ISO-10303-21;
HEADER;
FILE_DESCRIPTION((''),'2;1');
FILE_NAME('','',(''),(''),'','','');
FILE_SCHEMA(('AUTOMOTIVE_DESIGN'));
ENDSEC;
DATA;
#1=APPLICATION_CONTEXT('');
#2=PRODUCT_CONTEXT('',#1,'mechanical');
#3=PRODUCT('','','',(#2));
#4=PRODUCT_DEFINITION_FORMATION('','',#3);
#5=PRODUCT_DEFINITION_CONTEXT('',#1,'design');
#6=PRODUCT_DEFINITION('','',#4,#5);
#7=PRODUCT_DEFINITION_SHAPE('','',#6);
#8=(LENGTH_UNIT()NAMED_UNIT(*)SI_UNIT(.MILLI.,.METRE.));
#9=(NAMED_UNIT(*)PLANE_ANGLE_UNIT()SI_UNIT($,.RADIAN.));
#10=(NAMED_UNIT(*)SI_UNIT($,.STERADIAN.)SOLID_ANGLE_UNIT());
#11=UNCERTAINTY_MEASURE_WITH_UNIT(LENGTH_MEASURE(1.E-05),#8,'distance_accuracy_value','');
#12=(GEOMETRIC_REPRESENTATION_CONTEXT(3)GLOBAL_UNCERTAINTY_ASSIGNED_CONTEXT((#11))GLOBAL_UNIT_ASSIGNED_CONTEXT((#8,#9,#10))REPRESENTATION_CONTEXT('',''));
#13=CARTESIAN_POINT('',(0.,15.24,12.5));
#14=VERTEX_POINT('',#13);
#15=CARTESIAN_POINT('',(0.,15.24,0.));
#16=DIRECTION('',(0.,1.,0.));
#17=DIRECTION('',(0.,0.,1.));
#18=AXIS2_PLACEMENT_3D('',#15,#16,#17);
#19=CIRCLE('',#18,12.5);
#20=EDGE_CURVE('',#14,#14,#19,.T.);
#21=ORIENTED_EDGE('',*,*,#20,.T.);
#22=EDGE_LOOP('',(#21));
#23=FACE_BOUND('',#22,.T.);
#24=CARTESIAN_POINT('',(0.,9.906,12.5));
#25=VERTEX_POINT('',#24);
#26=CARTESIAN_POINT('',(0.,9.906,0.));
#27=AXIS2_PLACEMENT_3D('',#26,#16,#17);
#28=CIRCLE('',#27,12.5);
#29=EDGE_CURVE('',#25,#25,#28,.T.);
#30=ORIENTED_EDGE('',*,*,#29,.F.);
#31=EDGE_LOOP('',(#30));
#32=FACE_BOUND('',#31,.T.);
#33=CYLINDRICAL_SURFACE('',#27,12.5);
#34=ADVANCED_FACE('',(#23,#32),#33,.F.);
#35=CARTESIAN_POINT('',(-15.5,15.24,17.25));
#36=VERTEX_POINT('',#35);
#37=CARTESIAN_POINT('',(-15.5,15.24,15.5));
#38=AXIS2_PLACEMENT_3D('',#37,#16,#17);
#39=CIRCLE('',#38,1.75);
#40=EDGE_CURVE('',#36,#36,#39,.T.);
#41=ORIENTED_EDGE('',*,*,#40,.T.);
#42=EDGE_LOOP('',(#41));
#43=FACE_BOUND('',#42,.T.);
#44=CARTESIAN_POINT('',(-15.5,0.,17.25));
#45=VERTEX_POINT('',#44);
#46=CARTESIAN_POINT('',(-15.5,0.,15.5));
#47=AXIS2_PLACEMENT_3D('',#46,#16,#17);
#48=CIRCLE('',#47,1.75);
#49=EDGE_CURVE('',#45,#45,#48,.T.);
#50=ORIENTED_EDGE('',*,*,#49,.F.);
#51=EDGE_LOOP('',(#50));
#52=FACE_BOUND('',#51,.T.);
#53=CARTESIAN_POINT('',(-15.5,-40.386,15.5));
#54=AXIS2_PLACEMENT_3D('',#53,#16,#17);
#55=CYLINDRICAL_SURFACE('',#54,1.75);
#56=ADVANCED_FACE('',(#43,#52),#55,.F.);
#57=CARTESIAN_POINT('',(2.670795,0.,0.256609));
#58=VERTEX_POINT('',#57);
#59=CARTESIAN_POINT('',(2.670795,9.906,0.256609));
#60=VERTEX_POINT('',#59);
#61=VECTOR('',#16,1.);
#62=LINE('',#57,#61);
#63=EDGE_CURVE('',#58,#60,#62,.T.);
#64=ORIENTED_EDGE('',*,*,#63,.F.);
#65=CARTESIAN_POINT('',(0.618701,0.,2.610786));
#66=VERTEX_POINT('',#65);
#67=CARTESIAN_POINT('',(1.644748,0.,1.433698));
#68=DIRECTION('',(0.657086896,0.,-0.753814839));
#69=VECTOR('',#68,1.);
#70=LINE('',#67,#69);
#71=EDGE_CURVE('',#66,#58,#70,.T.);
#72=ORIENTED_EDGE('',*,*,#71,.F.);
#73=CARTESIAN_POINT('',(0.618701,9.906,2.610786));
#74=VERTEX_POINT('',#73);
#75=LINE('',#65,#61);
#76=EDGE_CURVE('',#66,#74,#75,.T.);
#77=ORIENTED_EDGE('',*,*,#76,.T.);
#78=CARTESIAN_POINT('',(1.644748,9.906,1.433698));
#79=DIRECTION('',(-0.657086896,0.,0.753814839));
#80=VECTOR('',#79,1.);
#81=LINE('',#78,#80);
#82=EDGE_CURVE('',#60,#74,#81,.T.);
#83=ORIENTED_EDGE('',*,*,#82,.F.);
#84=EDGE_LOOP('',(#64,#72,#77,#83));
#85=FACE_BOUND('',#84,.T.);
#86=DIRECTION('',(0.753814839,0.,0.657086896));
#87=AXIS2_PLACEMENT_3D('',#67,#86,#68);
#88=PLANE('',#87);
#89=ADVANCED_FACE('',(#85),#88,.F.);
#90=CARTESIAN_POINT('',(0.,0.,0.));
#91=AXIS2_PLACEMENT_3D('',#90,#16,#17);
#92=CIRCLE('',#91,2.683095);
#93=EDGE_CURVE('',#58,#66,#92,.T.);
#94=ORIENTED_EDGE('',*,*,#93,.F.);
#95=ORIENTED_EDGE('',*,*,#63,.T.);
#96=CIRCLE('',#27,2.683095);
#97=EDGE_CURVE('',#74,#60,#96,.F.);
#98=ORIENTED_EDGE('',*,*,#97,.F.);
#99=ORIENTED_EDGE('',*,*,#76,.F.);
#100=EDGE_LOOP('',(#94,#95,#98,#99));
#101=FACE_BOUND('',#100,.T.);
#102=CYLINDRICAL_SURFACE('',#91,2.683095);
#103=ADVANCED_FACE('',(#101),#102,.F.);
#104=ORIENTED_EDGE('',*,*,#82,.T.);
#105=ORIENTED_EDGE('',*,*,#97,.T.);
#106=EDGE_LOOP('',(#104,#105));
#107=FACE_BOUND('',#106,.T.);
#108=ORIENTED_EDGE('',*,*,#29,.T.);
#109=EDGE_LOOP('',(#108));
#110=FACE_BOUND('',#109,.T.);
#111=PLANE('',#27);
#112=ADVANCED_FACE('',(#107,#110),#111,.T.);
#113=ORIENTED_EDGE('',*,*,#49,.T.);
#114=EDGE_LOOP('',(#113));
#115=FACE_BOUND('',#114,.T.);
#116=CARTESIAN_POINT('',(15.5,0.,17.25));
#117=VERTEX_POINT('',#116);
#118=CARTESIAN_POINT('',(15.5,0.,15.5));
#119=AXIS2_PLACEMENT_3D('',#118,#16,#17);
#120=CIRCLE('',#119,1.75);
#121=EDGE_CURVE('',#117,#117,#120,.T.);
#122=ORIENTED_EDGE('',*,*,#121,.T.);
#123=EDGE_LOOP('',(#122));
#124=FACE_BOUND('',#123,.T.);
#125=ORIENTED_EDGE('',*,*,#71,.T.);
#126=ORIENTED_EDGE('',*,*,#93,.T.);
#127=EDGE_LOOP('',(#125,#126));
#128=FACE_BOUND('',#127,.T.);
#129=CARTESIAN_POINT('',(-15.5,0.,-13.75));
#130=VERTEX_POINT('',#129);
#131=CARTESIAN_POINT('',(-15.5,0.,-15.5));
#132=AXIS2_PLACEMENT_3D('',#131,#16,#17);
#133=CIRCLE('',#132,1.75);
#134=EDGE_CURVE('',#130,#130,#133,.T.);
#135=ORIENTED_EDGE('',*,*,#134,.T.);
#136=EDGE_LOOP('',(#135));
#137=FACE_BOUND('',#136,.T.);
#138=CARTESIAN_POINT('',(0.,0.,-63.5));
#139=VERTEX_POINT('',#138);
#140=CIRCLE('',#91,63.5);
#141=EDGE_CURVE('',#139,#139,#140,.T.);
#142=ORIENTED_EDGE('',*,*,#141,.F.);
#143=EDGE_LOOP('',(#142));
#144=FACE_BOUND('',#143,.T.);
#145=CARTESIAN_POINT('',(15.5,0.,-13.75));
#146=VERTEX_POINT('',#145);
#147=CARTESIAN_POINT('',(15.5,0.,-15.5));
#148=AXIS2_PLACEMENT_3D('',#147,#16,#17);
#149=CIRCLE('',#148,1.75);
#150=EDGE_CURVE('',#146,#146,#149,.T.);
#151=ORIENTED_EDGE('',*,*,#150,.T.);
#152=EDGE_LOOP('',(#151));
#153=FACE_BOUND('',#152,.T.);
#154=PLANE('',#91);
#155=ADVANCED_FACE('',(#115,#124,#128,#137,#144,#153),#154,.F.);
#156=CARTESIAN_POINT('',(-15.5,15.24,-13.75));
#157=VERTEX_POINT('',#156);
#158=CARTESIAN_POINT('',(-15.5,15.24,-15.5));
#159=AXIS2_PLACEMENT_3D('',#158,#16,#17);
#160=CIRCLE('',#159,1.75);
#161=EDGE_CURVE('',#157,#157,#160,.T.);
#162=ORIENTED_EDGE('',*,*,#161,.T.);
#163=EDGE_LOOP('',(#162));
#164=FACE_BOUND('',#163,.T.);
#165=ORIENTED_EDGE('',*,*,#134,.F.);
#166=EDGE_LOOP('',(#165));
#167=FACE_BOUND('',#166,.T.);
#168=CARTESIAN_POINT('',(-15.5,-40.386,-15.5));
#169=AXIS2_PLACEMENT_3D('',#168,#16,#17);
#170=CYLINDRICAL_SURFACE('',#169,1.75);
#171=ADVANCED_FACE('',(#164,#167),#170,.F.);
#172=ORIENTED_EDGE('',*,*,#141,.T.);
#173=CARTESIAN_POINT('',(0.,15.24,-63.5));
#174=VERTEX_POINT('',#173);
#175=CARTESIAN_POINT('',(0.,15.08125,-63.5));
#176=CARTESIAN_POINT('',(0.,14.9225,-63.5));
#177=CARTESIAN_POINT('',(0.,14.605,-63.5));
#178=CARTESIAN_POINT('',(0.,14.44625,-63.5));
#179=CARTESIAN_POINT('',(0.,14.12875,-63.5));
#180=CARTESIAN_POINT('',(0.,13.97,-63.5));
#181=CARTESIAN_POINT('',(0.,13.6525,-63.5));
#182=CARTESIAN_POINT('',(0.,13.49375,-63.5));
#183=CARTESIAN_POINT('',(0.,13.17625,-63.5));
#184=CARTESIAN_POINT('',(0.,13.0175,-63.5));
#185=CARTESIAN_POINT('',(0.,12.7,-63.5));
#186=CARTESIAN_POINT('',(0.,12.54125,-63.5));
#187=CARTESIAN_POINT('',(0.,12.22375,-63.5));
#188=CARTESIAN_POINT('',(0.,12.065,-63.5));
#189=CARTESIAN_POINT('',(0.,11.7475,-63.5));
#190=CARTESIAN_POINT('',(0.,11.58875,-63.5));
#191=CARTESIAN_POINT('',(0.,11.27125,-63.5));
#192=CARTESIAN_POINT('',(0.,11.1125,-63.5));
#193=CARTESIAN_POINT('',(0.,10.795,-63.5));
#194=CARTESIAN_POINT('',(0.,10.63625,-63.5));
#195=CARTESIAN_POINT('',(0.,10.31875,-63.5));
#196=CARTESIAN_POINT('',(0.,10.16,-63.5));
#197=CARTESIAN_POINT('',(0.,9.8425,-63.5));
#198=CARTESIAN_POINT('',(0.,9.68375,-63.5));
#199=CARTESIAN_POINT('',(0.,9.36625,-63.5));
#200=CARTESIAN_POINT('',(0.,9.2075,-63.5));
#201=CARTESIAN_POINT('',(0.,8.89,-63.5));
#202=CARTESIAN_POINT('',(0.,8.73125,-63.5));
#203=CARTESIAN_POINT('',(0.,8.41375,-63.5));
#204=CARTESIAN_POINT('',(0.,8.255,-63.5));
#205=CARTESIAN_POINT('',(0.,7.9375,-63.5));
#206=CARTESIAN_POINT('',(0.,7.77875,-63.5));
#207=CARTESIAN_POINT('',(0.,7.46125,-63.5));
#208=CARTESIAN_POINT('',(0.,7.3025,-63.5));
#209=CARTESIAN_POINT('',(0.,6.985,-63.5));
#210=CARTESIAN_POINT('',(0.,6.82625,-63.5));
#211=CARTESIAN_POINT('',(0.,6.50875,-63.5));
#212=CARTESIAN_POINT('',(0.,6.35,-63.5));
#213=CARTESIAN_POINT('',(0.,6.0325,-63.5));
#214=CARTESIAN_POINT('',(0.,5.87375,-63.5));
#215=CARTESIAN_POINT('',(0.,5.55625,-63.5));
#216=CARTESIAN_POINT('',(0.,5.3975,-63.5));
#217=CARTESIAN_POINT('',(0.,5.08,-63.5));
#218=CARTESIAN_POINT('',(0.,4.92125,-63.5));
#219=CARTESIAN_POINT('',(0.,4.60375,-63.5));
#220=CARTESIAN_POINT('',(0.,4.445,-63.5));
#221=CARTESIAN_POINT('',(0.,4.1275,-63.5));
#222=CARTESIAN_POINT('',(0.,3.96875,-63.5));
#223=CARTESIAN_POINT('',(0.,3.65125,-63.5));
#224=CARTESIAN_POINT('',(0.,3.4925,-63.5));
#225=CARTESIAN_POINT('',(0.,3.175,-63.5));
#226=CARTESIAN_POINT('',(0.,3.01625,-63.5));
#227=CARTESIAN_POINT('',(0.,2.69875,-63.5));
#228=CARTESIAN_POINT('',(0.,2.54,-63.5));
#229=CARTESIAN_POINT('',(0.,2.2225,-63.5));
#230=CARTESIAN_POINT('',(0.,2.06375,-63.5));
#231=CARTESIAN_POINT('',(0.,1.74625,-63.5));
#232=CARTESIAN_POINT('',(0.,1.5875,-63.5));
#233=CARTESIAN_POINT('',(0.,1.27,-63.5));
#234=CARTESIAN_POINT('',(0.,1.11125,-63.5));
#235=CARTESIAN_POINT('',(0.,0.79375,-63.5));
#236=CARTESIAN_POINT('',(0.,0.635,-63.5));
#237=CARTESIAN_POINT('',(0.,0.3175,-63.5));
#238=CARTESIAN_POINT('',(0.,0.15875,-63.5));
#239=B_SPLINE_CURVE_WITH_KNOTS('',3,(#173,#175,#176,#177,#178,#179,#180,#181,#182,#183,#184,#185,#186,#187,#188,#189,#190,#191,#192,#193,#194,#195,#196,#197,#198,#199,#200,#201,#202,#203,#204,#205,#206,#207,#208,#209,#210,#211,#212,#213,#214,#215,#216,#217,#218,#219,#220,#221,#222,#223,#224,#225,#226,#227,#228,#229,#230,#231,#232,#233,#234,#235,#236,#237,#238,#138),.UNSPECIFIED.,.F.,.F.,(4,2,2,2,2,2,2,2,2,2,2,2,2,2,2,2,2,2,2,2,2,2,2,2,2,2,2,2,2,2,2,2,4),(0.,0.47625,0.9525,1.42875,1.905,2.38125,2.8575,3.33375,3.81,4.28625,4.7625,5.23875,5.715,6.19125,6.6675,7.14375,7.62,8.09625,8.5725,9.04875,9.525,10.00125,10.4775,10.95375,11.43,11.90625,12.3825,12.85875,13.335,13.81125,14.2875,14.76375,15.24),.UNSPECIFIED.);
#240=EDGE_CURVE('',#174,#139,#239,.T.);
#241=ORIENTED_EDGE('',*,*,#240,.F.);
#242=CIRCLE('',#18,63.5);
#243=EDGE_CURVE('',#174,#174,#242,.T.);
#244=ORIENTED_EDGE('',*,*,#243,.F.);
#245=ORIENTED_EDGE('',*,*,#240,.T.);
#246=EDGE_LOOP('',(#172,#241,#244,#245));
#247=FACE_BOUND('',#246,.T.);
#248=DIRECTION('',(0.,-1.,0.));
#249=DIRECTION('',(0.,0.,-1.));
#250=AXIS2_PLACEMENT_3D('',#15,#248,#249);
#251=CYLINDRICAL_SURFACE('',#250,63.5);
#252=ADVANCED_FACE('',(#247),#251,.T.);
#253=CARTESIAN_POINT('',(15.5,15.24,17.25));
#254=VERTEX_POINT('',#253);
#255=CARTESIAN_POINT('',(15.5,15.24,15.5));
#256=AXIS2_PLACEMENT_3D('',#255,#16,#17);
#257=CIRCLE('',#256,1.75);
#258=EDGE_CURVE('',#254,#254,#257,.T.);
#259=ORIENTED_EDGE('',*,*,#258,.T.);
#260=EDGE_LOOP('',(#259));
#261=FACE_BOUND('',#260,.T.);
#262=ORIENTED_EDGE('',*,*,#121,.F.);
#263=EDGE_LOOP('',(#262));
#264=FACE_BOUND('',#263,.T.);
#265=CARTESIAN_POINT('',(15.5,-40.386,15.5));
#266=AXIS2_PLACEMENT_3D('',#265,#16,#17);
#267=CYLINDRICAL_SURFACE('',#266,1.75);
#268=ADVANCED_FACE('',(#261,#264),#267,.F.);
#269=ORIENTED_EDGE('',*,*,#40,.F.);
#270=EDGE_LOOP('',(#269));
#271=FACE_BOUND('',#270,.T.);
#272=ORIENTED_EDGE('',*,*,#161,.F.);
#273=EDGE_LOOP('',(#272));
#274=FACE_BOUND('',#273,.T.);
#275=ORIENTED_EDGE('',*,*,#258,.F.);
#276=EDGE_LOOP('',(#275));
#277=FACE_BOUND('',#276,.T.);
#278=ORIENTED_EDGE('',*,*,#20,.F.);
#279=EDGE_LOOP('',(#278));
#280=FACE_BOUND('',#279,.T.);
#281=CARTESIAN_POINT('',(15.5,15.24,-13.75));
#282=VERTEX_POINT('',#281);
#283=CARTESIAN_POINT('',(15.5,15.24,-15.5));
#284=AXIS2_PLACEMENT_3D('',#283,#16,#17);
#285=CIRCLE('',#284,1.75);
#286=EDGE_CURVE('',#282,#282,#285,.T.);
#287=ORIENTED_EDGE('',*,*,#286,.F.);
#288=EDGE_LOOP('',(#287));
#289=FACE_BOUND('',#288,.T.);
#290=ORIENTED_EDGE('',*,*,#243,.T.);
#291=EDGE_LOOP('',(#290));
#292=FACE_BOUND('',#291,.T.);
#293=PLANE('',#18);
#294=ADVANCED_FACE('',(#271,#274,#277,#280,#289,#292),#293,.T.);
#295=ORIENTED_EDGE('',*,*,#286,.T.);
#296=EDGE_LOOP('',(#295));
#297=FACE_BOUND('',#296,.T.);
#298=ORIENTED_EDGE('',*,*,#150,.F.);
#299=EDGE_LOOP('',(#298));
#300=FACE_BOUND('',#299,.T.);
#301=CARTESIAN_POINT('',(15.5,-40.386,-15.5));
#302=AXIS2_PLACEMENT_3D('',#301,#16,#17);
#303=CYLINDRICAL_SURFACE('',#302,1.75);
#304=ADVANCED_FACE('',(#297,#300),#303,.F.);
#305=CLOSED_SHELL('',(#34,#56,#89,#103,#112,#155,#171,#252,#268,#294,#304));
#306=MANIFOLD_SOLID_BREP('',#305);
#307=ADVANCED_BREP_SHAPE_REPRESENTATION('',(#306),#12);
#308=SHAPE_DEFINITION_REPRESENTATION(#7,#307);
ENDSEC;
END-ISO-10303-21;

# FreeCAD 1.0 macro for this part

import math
import FreeCAD as App
import Part
import Sketcher
Q = App.Units.Quantity

doc = App.newDocument("Part")
body = doc.addObject("PartDesign::Body", "Body")

# Sketch on XZ plane
sketch1 = body.newObject("Sketcher::SketchObject", "Sketch")
sketch1.AttachmentSupport = (doc.getObject("XZ_Plane"), [""])
sketch1.MapMode = "FlatFace"
sketch1.addGeometry(Part.Circle(App.Vector(0, 0, 0), App.Vector(0, 0, 1), 64), False)
sketch1.addConstraint([
    Sketcher.Constraint("Coincident", 0, 3, -1, 1),
    Sketcher.Constraint("Diameter", 0, Q("5 in")),
])
pad1 = body.newObject("PartDesign::Pad", "Pad")
pad1.Profile = sketch1
pad1.Length = Q("0.6 in")
pad1.Reversed = True

# Sketch on XZ plane
sketch2 = body.newObject("Sketcher::SketchObject", "Sketch001")
sketch2.AttachmentSupport = (doc.getObject("XZ_Plane"), [""])
sketch2.MapMode = "FlatFace"
sketch2.AttachmentOffset = App.Placement(App.Vector(0, 0, -0.6 * 25.4), App.Rotation())
sketch2.addGeometry([
    Part.ArcOfCircle(Part.Circle(App.Vector(0, 0, 0), App.Vector(0, 0, 1), 2.68), math.radians(77), math.radians(360)),
    Part.LineSegment(App.Vector(0.62, 2.61, 0), App.Vector(2.67, 0.26, 0)),
    Part.ArcOfCircle(Part.Circle(App.Vector(0, 0, 0), App.Vector(0, 0, 1), 2.68), math.radians(0), math.radians(5.49)),
], False)
sketch2.addConstraint([
    Sketcher.Constraint("Coincident", 0, 1, 1, 1),
    Sketcher.Constraint("Coincident", 1, 2, 2, 2),
    Sketcher.Constraint("Tangent", 2, 1, 0, 2),
    Sketcher.Constraint("Coincident", 0, 3, -1, 1),
    Sketcher.Constraint("Equal", 0, 2),
    Sketcher.Constraint("PointOnObject", 2, 1, -1),
    Sketcher.Constraint("Radius", 0, Q("2.683095 mm")),
    Sketcher.Constraint("DistanceX", -1, 1, 0, 1, Q("0.618701 mm")),
    Sketcher.Constraint("DistanceX", 1, 2, 2, 1, Q("0.012299 mm")),
])
pocket1 = body.newObject("PartDesign::Pocket", "Pocket")
pocket1.Profile = sketch2
pocket1.Type = "ThroughAll"
pocket1.Reversed = True

# Sketch on XZ plane
sketch3 = body.newObject("Sketcher::SketchObject", "Sketch002")
sketch3.AttachmentSupport = (doc.getObject("XZ_Plane"), [""])
sketch3.MapMode = "FlatFace"
sketch3.AttachmentOffset = App.Placement(App.Vector(0, 0, -0.6 * 25.4), App.Rotation())
sketch3.addGeometry([
    Part.Circle(App.Vector(-15.5, -15.5, 0), App.Vector(0, 0, 1), 1.8),
    Part.Circle(App.Vector(15.5, -15.5, 0), App.Vector(0, 0, 1), 1.8),
    Part.Circle(App.Vector(15.5, 15.5, 0), App.Vector(0, 0, 1), 1.8),
    Part.Circle(App.Vector(-15.5, 15.5, 0), App.Vector(0, 0, 1), 1.8),
], False)
sketch3.addConstraint([
    Sketcher.Constraint("Equal", 0, 1),
    Sketcher.Constraint("Equal", 1, 2),
    Sketcher.Constraint("Equal", 2, 3),
    Sketcher.Constraint("Symmetric", 0, 3, 2, 3, -1, 1),
    Sketcher.Constraint("Symmetric", 1, 3, 3, 3, -1, 1),
    Sketcher.Constraint("Symmetric", 0, 3, 1, 3, -2),
    Sketcher.Constraint("Diameter", 0, Q("3.5 mm")),
    Sketcher.Constraint("DistanceX", 0, 3, -1, 1, Q("15.5 mm")),
    Sketcher.Constraint("DistanceY", 0, 3, -1, 1, Q("15.5 mm")),
])
pocket2 = body.newObject("PartDesign::Pocket", "Pocket001")
pocket2.Profile = sketch3
pocket2.Length = Q("2.19 in")
pocket2.Reversed = True

# Sketch on XZ plane
sketch4 = body.newObject("Sketcher::SketchObject", "Sketch003")
sketch4.AttachmentSupport = (doc.getObject("XZ_Plane"), [""])
sketch4.MapMode = "FlatFace"
sketch4.AttachmentOffset = App.Placement(App.Vector(0, 0, -0.6 * 25.4), App.Rotation())
sketch4.addGeometry(Part.Circle(App.Vector(0, 0, 0), App.Vector(0, 0, 1), 12), False)
sketch4.addConstraint([
    Sketcher.Constraint("Coincident", 0, 3, -1, 1),
    Sketcher.Constraint("Diameter", 0, Q("25 mm")),
])
pocket3 = body.newObject("PartDesign::Pocket", "Pocket002")
pocket3.Profile = sketch4
pocket3.Length = Q("0.21 in")
pocket3.Reversed = True

doc.recompute()
